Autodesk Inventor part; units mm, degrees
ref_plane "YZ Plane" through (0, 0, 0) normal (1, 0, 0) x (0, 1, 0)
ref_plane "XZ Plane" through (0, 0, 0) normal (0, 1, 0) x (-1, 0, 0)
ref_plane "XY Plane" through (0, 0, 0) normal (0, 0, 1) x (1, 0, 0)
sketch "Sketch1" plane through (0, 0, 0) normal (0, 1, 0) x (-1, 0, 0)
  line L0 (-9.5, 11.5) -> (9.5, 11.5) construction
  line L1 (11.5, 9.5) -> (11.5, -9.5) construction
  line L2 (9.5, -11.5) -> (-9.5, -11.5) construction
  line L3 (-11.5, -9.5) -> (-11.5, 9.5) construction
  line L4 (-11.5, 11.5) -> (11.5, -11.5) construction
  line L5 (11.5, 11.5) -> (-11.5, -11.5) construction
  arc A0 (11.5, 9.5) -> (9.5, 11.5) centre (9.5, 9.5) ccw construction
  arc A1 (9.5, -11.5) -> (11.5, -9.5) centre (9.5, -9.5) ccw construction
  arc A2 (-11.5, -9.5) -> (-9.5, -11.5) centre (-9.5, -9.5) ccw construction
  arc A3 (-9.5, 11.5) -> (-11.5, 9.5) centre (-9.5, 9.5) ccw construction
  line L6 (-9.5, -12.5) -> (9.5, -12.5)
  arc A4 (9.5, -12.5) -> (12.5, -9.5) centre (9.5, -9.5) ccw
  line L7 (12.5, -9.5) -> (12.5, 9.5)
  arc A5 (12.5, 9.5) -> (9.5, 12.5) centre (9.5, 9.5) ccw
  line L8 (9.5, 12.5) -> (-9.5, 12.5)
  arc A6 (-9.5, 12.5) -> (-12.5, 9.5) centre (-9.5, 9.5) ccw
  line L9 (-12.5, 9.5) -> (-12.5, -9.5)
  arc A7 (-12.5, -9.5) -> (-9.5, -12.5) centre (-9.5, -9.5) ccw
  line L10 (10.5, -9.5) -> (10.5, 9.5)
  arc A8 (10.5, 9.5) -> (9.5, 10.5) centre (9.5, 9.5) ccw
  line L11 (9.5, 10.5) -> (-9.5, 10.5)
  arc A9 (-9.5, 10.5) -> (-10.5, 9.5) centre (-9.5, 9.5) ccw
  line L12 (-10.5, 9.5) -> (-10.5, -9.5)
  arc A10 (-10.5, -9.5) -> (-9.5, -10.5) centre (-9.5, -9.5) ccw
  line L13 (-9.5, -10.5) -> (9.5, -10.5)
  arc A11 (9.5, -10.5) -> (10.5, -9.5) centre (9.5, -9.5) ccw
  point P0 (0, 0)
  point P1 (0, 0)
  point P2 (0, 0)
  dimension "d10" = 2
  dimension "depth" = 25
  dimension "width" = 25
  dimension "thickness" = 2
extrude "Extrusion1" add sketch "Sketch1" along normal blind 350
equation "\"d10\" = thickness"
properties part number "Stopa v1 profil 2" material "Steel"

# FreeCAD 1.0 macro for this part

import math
import FreeCAD as App
import Part
import Sketcher

doc = App.newDocument("Part")
body = doc.addObject("PartDesign::Body", "Body")

# Sketch on XZ plane
sketch1 = body.newObject("Sketcher::SketchObject", "Sketch")
sketch1.AttachmentSupport = (doc.getObject("XZ_Plane"), [""])
sketch1.MapMode = "FlatFace"
sketch1.addGeometry([
    Part.ArcOfCircle(Part.Circle(App.Vector(9.5, -9.5, 0), App.Vector(0, 0, 1), 3), math.radians(-90), math.radians(0)),  # 0
    Part.LineSegment(App.Vector(9.5, -12.5, 0), App.Vector(-9.5, -12.5, 0)),  # 1
    Part.ArcOfCircle(Part.Circle(App.Vector(-9.5, -9.5, 0), App.Vector(0, 0, 1), 3), math.radians(180), math.radians(270)),  # 2
    Part.LineSegment(App.Vector(-12.5, -9.5, 0), App.Vector(-12.5, 9.5, 0)),  # 3
    Part.ArcOfCircle(Part.Circle(App.Vector(-9.5, 9.5, 0), App.Vector(0, 0, 1), 3), math.radians(90), math.radians(180)),  # 4
    Part.LineSegment(App.Vector(-9.5, 12.5, 0), App.Vector(9.5, 12.5, 0)),  # 5
    Part.ArcOfCircle(Part.Circle(App.Vector(9.5, 9.5, 0), App.Vector(0, 0, 1), 3), math.radians(0), math.radians(90)),  # 6
    Part.LineSegment(App.Vector(12.5, 9.5, 0), App.Vector(12.5, -9.5, 0)),  # 7
    Part.LineSegment(App.Vector(-10.5, 9.5, 0), App.Vector(-10.5, -9.5, 0)),  # 8
    Part.ArcOfCircle(Part.Circle(App.Vector(-9.5, -9.5, 0), App.Vector(0, 0, 1), 1), math.radians(180), math.radians(270)),  # 9
    Part.LineSegment(App.Vector(-9.5, -10.5, 0), App.Vector(9.5, -10.5, 0)),  # 10
    Part.ArcOfCircle(Part.Circle(App.Vector(9.5, -9.5, 0), App.Vector(0, 0, 1), 1), math.radians(-90), math.radians(0)),  # 11
    Part.LineSegment(App.Vector(10.5, -9.5, 0), App.Vector(10.5, 9.5, 0)),  # 12
    Part.ArcOfCircle(Part.Circle(App.Vector(9.5, 9.5, 0), App.Vector(0, 0, 1), 1), math.radians(0), math.radians(90)),  # 13
    Part.LineSegment(App.Vector(9.5, 10.5, 0), App.Vector(-9.5, 10.5, 0)),  # 14
    Part.ArcOfCircle(Part.Circle(App.Vector(-9.5, 9.5, 0), App.Vector(0, 0, 1), 1), math.radians(90), math.radians(180)),  # 15
], False)
sketch1.addConstraint([
    Sketcher.Constraint("Tangent", 0, 1, 1, 1),
    Sketcher.Constraint("Tangent", 1, 2, 2, 2),
    Sketcher.Constraint("Tangent", 2, 1, 3, 1),
    Sketcher.Constraint("Tangent", 3, 2, 4, 2),
    Sketcher.Constraint("Tangent", 4, 1, 5, 1),
    Sketcher.Constraint("Tangent", 5, 2, 6, 2),
    Sketcher.Constraint("Tangent", 6, 1, 7, 1),
    Sketcher.Constraint("Tangent", 7, 2, 0, 2),
    Sketcher.Constraint("Tangent", 8, 2, 9, 1),
    Sketcher.Constraint("Tangent", 9, 2, 10, 1),
    Sketcher.Constraint("Tangent", 10, 2, 11, 1),
    Sketcher.Constraint("Tangent", 11, 2, 12, 1),
    Sketcher.Constraint("Tangent", 12, 2, 13, 1),
    Sketcher.Constraint("Tangent", 13, 2, 14, 1),
    Sketcher.Constraint("Tangent", 14, 2, 15, 1),
    Sketcher.Constraint("Tangent", 15, 2, 8, 1),
    Sketcher.Constraint("Horizontal", 1),
    Sketcher.Constraint("Vertical", 3),
    Sketcher.Constraint("Horizontal", 5),
    Sketcher.Constraint("Vertical", 7),
    Sketcher.Constraint("Vertical", 8),
    Sketcher.Constraint("Horizontal", 10),
    Sketcher.Constraint("Vertical", 12),
    Sketcher.Constraint("Horizontal", 14),
    Sketcher.Constraint("Coincident", 9, 3, 2, 3),
    Sketcher.Constraint("Coincident", 11, 3, 0, 3),
    Sketcher.Constraint("Coincident", 13, 3, 6, 3),
    Sketcher.Constraint("Equal", 0, 2),
    Sketcher.Constraint("Equal", 2, 4),
    Sketcher.Constraint("Equal", 4, 6),
    Sketcher.Constraint("Equal", 13, 15),
    Sketcher.Constraint("Symmetric", 0, 3, 4, 3, -1, 1),
    Sketcher.Constraint("Equal", 14, 3),
    Sketcher.Constraint("Radius", 9, 1.0),
    Sketcher.Constraint("Radius", 0, 3.0),
    Sketcher.Constraint("DistanceX", 1, 2, 1, 1, 19.0),
])
pad1 = body.newObject("PartDesign::Pad", "Pad")
pad1.Profile = sketch1
pad1.Length = 350
pad1.Reversed = True

doc.recompute()
